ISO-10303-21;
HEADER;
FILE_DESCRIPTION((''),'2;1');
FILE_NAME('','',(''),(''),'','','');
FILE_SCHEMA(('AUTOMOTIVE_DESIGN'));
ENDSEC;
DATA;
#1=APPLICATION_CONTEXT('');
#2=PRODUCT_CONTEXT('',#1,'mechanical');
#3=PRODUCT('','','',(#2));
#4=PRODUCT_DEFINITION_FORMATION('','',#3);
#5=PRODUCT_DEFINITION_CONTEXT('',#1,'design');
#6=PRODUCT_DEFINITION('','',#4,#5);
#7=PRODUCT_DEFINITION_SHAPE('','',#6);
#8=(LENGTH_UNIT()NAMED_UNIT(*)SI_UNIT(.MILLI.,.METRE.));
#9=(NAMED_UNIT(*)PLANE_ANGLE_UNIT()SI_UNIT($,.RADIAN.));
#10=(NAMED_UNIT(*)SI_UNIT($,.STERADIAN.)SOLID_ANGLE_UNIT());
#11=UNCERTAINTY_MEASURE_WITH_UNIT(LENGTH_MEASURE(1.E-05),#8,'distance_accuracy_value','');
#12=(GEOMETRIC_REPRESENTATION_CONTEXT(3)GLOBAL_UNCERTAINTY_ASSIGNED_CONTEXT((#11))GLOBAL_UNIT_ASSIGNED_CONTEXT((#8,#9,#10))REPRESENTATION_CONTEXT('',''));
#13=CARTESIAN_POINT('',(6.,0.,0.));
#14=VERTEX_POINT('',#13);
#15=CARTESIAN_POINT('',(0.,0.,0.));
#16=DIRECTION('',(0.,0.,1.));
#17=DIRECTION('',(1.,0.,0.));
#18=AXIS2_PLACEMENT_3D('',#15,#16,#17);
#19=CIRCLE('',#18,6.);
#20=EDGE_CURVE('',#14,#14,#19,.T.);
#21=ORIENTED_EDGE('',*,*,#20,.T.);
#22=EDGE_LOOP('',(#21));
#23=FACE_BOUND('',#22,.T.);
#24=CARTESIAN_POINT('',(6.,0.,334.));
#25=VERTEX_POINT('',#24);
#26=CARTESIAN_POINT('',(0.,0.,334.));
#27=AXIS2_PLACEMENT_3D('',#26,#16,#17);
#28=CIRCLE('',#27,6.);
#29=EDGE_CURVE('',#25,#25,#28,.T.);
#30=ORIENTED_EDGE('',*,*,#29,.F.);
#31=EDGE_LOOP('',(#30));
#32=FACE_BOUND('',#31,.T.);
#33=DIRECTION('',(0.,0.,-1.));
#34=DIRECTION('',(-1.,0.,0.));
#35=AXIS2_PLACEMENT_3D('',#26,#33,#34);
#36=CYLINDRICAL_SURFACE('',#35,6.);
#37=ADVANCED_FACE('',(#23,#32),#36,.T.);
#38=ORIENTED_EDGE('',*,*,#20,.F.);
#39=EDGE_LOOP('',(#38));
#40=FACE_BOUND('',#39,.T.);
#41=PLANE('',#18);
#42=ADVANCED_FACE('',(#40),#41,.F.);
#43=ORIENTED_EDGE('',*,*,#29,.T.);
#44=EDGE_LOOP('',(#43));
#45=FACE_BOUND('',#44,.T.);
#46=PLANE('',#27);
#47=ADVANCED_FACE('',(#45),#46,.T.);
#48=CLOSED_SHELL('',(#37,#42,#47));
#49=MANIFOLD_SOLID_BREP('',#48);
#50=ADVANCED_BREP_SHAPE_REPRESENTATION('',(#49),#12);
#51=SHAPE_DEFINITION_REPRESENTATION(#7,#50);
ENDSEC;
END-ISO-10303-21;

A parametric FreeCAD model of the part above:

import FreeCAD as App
import Part
import Sketcher
from FreeCAD import Vector

doc = App.newDocument("Part")
body = doc.addObject("PartDesign::Body", "Body")

sketch1 = body.newObject("Sketcher::SketchObject", "Sketch")
sketch1.AttachmentSupport = (doc.getObject("XY_Plane"), [""])
sketch1.MapMode = "FlatFace"
sketch1.addGeometry(Part.Circle(Vector(0, 0, 0), Vector(0, 0, 1), 6), False)
sketch1.addConstraint([
    Sketcher.Constraint("Coincident", 0, 3, -1, 1),
    Sketcher.Constraint("Diameter", 0, 12.0),
])
pad1 = body.newObject("PartDesign::Pad", "Pad")
pad1.Profile = sketch1
pad1.Length = 334

doc.recompute()
